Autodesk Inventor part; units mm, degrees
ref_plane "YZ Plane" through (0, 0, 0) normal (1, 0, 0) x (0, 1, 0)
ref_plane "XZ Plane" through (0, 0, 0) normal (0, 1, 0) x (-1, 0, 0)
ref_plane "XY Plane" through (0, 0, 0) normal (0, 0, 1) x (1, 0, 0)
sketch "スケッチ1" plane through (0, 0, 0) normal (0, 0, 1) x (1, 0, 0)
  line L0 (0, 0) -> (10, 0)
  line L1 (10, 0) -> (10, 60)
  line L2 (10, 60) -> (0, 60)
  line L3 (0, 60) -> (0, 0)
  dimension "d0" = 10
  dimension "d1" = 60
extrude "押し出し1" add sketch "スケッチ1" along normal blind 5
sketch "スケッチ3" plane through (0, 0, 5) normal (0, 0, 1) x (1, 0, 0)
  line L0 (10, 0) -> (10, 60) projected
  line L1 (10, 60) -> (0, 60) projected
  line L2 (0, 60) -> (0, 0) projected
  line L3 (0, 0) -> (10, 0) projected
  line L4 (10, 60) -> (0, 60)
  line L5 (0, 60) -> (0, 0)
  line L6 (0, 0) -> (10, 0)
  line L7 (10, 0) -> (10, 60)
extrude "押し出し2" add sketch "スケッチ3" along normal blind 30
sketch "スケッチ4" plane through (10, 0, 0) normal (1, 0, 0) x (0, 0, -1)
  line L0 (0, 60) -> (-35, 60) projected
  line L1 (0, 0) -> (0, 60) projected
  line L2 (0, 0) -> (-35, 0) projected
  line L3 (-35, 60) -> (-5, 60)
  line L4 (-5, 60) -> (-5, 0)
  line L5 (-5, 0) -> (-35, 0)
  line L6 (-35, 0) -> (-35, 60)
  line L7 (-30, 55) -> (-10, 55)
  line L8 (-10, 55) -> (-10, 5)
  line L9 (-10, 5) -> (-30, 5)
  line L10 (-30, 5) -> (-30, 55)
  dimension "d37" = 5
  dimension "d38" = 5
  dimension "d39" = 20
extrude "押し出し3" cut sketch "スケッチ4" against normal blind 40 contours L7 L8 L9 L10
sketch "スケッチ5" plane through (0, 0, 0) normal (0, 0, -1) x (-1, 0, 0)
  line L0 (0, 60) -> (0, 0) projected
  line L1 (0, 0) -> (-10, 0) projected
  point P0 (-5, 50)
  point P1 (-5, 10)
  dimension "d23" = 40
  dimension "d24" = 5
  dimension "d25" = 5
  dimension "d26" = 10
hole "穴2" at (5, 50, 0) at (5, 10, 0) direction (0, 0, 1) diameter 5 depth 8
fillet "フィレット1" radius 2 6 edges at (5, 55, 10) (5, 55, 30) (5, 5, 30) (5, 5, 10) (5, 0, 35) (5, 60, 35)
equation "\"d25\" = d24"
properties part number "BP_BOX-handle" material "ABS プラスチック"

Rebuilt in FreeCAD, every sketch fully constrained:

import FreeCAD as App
import Part
import Sketcher

V = App.Vector


def edges_at(feature, points):
    """Names of the edges that pass closest to the given points."""
    edges = feature.Shape.Edges
    near = lambda p: min(range(len(edges)), key=lambda i: edges[i].distToShape(Part.Vertex(*p))[0])
    return sorted({f"Edge{near(p) + 1}" for p in points})


def add_polygon(sketch, points):
    """Adds a closed chain of lines whose ends are joined by coincident constraints."""
    first, n = sketch.GeometryCount, len(points)
    for a, b in zip(points, points[1:] + points[:1]):
        sketch.addGeometry(Part.LineSegment(App.Vector(*a, 0), App.Vector(*b, 0)), False)
    for i in range(n):
        sketch.addConstraint(Sketcher.Constraint("Coincident", first + i, 2, first + (i + 1) % n, 1))

doc = App.newDocument("Part")
body = doc.addObject("PartDesign::Body", "Body")

sketch1 = body.newObject("Sketcher::SketchObject", "Sketch")
sketch1.AttachmentSupport = (doc.getObject("XY_Plane"), [""])
sketch1.MapMode = "FlatFace"
add_polygon(sketch1, [(0, 60), (0, 0), (10, 0), (10, 60)])
sketch1.addConstraint([
    Sketcher.Constraint("Vertical", 0),
    Sketcher.Constraint("Horizontal", 1),
    Sketcher.Constraint("Vertical", 2),
    Sketcher.Constraint("Horizontal", 3),
    Sketcher.Constraint("Coincident", 0, 2, -1, 1),
    Sketcher.Constraint("DistanceX", 1, 1, 1, 2, 10.0),
    Sketcher.Constraint("DistanceY", 0, 2, 0, 1, 60.0),
])
pad1 = body.newObject("PartDesign::Pad", "Pad")
pad1.Profile = sketch1
pad1.Length = 5

sketch2 = body.newObject("Sketcher::SketchObject", "Sketch001")
sketch2.AttachmentSupport = (doc.getObject("XY_Plane"), [""])
sketch2.MapMode = "FlatFace"
sketch2.AttachmentOffset = App.Placement(V(0, 0, 5), App.Rotation())
add_polygon(sketch2, [(0, 0), (10, 0), (10, 60), (0, 60)])
sketch2.addConstraint([
    Sketcher.Constraint("Horizontal", 0),
    Sketcher.Constraint("Vertical", 1),
    Sketcher.Constraint("Horizontal", 2),
    Sketcher.Constraint("Vertical", 3),
    Sketcher.Constraint("Coincident", 3, 2, -1, 1),
    Sketcher.Constraint("DistanceX", 0, 1, 0, 2, 10.0),
    Sketcher.Constraint("DistanceY", 1, 1, 1, 2, 60.0),
])
pad2 = body.newObject("PartDesign::Pad", "Pad001")
pad2.Profile = sketch2
pad2.Length = 30

sketch3 = body.newObject("Sketcher::SketchObject", "Sketch002")
sketch3.AttachmentSupport = (doc.getObject("YZ_Plane"), [""])
sketch3.MapMode = "FlatFace"
sketch3.AttachmentOffset = App.Placement(V(0, 0, 10), App.Rotation())
add_polygon(sketch3, [(55, 10), (55, 30), (5, 30), (5, 10)])
sketch3.addConstraint([
    Sketcher.Constraint("Vertical", 0),
    Sketcher.Constraint("Horizontal", 1),
    Sketcher.Constraint("Vertical", 2),
    Sketcher.Constraint("Horizontal", 3),
    Sketcher.Constraint("DistanceY", 0, 1, 0, 2, 20.0),
    Sketcher.Constraint("DistanceX", -1, 1, 1, 2, 5.0),
    Sketcher.Constraint("DistanceX", 1, 2, 1, 1, 50.0),
    Sketcher.Constraint("DistanceY", -1, 1, 0, 2, 30.0),
])
pocket1 = body.newObject("PartDesign::Pocket", "Pocket")
pocket1.Profile = sketch3
pocket1.Length = 40

sketch4 = body.newObject("Sketcher::SketchObject", "Sketch003")
sketch4.AttachmentSupport = (doc.getObject("XY_Plane"), [""])
sketch4.MapMode = "FlatFace"
sketch4.addGeometry([
    Part.Circle(V(5, 50, 0), V(0, 0, 1), 2.5),
    Part.Circle(V(5, 10, 0), V(0, 0, 1), 2.5),
], False)
sketch4.addConstraint([
    Sketcher.Constraint("Equal", 0, 1),
    Sketcher.Constraint("Vertical", 0, 3, 1, 3),
    Sketcher.Constraint("Diameter", 0, 5.0),
    Sketcher.Constraint("DistanceX", -1, 1, 0, 3, 5.0),
    Sketcher.Constraint("DistanceY", -1, 1, 0, 3, 50.0),
    Sketcher.Constraint("DistanceY", -1, 1, 1, 3, 10.0),
])
doc.recompute()
hole = body.newObject("PartDesign::Hole", "Hole")
hole.Profile = sketch4
hole.ThreadType = "None"
hole.Diameter = 5
hole.DepthType = "Dimension"
hole.Depth = 8
hole.DrillPoint = "Flat"
hole.Reversed = True
doc.recompute()

fillet = body.newObject("PartDesign::Fillet", "Fillet")
fillet.Base = (hole, edges_at(hole, [
    (5, 55, 10),
    (5, 55, 30),
    (5, 5, 30),
    (5, 5, 10),
    (5, 0, 35),
    (5, 60, 35),
]))
fillet.Radius = 2

doc.recompute()
